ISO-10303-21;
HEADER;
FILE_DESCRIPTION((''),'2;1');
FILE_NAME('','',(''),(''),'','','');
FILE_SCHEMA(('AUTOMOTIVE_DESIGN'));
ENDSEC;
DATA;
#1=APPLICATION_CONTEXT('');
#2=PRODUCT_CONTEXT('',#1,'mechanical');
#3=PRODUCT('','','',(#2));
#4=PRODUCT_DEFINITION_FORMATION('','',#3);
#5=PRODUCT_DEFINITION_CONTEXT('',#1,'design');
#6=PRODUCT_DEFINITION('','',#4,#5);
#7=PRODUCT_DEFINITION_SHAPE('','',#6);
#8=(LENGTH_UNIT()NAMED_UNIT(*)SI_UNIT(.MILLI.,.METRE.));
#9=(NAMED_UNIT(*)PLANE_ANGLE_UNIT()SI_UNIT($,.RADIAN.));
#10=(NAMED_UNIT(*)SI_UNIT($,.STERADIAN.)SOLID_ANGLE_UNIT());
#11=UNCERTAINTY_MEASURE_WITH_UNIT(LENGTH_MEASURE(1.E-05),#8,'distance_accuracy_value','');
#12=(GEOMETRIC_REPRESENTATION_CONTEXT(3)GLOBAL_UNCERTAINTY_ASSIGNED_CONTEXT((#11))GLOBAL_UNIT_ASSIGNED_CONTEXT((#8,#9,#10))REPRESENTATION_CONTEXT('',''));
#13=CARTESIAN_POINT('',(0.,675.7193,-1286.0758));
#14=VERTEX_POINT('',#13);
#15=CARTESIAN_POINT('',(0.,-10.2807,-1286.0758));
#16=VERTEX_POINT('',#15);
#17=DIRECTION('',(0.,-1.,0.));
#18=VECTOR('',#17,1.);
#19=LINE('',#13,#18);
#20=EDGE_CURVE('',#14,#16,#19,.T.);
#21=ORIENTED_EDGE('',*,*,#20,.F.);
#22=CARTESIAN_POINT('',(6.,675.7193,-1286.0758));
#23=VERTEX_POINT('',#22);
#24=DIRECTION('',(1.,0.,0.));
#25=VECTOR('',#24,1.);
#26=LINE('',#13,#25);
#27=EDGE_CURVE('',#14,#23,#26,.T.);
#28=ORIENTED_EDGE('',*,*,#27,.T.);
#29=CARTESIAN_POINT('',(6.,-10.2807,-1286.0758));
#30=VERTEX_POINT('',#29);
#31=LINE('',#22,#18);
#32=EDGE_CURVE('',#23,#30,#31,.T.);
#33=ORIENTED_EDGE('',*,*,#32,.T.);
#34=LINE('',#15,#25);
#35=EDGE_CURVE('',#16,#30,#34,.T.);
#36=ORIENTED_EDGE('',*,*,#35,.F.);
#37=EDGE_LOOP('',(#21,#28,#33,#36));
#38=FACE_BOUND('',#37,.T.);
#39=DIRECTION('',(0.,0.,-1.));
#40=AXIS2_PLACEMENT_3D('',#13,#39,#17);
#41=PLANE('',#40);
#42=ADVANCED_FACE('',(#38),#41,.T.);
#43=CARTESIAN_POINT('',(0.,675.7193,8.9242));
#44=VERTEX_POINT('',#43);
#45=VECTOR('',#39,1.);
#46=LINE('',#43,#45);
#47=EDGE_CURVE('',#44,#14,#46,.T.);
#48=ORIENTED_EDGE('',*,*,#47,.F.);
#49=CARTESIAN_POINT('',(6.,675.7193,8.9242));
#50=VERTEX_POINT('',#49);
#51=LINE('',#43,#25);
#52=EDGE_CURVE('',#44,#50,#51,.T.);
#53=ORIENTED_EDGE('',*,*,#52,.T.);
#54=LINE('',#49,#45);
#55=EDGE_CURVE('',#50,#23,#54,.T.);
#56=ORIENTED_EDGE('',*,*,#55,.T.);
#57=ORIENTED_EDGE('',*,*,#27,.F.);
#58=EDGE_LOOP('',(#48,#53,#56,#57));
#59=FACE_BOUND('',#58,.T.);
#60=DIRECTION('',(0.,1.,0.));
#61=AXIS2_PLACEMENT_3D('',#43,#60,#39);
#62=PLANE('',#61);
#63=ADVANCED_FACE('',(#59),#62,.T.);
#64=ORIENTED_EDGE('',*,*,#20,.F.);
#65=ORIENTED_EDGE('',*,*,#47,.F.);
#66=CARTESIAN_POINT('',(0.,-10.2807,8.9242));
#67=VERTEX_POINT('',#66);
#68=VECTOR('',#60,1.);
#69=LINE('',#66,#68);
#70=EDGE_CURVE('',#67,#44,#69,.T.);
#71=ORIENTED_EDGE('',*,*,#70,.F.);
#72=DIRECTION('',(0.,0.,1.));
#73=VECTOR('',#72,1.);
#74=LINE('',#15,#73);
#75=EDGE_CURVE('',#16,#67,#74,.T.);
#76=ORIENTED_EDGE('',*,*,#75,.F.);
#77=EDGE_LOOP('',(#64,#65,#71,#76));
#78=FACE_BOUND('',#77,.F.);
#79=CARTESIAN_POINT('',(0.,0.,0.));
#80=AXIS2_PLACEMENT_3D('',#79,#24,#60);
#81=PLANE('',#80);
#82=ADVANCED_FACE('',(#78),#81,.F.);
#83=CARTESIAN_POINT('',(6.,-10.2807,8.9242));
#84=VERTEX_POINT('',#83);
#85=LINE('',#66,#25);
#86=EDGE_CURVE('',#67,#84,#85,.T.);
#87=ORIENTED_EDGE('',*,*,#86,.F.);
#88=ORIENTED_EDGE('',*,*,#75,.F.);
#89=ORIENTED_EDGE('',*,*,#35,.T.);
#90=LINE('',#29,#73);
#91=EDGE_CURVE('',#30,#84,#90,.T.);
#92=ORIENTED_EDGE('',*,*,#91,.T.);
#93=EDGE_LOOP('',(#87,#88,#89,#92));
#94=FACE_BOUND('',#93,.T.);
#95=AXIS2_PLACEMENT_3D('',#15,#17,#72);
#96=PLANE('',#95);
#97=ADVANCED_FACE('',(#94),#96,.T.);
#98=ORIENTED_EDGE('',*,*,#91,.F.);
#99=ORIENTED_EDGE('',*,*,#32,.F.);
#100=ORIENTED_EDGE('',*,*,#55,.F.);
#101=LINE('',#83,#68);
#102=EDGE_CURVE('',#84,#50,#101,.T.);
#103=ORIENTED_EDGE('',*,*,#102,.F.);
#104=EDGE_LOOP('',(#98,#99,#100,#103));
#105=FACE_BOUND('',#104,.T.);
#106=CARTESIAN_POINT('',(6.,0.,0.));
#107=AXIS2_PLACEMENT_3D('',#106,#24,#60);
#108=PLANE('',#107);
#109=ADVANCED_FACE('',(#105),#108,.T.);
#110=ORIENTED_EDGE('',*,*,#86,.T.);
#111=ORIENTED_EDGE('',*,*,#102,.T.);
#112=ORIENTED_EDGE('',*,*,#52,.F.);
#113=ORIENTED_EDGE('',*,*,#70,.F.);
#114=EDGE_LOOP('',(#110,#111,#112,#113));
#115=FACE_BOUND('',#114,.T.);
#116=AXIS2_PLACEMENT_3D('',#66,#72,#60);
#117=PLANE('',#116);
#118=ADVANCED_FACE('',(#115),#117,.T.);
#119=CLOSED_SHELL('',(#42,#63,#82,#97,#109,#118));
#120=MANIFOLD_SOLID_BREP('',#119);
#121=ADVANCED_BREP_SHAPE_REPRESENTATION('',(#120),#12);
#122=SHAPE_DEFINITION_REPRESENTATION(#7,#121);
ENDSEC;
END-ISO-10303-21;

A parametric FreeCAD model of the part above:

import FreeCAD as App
import Part
import Sketcher


def add_polygon(sketch, points):
    """Adds a closed chain of lines whose ends are joined by coincident constraints."""
    first, n = sketch.GeometryCount, len(points)
    for a, b in zip(points, points[1:] + points[:1]):
        sketch.addGeometry(Part.LineSegment(App.Vector(*a, 0), App.Vector(*b, 0)), False)
    for i in range(n):
        sketch.addConstraint(Sketcher.Constraint("Coincident", first + i, 2, first + (i + 1) % n, 1))

doc = App.newDocument("Part")
body = doc.addObject("PartDesign::Body", "Body")

# Sketch on YZ plane
sketch1 = doc.addObject("Sketcher::SketchObject", "Sketch")
body.addObject(sketch1)
sketch1.AttachmentSupport = (doc.YZ_Plane, [""])
sketch1.MapMode = "FlatFace"
add_polygon(sketch1, [(676, 9), (-10, 9), (-10, -1286), (676, -1286)])  # lines 0-3
sketch1.addConstraint([
    Sketcher.Constraint("Horizontal", 0),
    Sketcher.Constraint("Vertical", 1),
    Sketcher.Constraint("Horizontal", 2),
    Sketcher.Constraint("Vertical", 3),
    Sketcher.Constraint("DistanceX", 0, 2, 0, 1, 686.0),
    Sketcher.Constraint("DistanceY", 1, 2, 1, 1, 1295.0),
    Sketcher.Constraint("DistanceX", 0, 2, -1, 1, 10.2807),
    Sketcher.Constraint("DistanceY", -1, 1, 0, 2, 8.9242),
])
pad1 = doc.addObject("PartDesign::Pad", "Pad")
body.addObject(pad1)
pad1.Profile = sketch1
pad1.Length = 6

doc.recompute()
